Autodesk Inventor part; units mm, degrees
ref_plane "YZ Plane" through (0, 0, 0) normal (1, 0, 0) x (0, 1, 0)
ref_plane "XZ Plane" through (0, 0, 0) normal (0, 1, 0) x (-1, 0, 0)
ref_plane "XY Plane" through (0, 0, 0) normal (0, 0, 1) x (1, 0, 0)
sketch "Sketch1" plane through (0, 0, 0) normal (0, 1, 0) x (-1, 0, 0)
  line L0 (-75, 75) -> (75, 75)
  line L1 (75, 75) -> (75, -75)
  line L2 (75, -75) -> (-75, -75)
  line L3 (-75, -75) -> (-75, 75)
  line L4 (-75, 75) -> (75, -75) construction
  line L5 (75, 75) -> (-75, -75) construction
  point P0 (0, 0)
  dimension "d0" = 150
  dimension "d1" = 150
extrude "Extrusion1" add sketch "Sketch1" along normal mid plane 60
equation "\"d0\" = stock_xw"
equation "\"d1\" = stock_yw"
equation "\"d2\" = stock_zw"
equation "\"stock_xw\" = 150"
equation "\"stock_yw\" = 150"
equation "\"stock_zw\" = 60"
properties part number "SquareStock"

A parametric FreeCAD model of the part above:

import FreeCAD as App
import Part
import Sketcher
from FreeCAD import Vector

doc = App.newDocument("Part")
body = doc.addObject("PartDesign::Body", "Body")

# Sketch on XZ plane
sketch1 = body.newObject("Sketcher::SketchObject", "Sketch")
sketch1.AttachmentSupport = (doc.getObject("XZ_Plane"), [""])
sketch1.MapMode = "FlatFace"
sketch1.addGeometry([
    Part.LineSegment(Vector(-75, 75, 0), Vector(75, 75, 0)),
    Part.LineSegment(Vector(75, 75, 0), Vector(75, -75, 0)),
    Part.LineSegment(Vector(75, -75, 0), Vector(-75, -75, 0)),
    Part.LineSegment(Vector(-75, -75, 0), Vector(-75, 75, 0)),
], False)
sketch1.addConstraint([
    Sketcher.Constraint("Coincident", 0, 2, 1, 1),
    Sketcher.Constraint("Coincident", 1, 2, 2, 1),
    Sketcher.Constraint("Coincident", 2, 2, 3, 1),
    Sketcher.Constraint("Coincident", 3, 2, 0, 1),
    Sketcher.Constraint("Horizontal", 0),
    Sketcher.Constraint("Vertical", 1),
    Sketcher.Constraint("Horizontal", 2),
    Sketcher.Constraint("Vertical", 3),
    Sketcher.Constraint("Symmetric", 0, 2, 2, 2, -1, 1),
    Sketcher.Constraint("Equal", 2, 1),
    Sketcher.Constraint("DistanceX", 0, 1, 0, 2, 150.0),
])
pad1 = body.newObject("PartDesign::Pad", "Pad")
pad1.Profile = sketch1
pad1.Length = 60
pad1.Midplane = True

doc.recompute()
